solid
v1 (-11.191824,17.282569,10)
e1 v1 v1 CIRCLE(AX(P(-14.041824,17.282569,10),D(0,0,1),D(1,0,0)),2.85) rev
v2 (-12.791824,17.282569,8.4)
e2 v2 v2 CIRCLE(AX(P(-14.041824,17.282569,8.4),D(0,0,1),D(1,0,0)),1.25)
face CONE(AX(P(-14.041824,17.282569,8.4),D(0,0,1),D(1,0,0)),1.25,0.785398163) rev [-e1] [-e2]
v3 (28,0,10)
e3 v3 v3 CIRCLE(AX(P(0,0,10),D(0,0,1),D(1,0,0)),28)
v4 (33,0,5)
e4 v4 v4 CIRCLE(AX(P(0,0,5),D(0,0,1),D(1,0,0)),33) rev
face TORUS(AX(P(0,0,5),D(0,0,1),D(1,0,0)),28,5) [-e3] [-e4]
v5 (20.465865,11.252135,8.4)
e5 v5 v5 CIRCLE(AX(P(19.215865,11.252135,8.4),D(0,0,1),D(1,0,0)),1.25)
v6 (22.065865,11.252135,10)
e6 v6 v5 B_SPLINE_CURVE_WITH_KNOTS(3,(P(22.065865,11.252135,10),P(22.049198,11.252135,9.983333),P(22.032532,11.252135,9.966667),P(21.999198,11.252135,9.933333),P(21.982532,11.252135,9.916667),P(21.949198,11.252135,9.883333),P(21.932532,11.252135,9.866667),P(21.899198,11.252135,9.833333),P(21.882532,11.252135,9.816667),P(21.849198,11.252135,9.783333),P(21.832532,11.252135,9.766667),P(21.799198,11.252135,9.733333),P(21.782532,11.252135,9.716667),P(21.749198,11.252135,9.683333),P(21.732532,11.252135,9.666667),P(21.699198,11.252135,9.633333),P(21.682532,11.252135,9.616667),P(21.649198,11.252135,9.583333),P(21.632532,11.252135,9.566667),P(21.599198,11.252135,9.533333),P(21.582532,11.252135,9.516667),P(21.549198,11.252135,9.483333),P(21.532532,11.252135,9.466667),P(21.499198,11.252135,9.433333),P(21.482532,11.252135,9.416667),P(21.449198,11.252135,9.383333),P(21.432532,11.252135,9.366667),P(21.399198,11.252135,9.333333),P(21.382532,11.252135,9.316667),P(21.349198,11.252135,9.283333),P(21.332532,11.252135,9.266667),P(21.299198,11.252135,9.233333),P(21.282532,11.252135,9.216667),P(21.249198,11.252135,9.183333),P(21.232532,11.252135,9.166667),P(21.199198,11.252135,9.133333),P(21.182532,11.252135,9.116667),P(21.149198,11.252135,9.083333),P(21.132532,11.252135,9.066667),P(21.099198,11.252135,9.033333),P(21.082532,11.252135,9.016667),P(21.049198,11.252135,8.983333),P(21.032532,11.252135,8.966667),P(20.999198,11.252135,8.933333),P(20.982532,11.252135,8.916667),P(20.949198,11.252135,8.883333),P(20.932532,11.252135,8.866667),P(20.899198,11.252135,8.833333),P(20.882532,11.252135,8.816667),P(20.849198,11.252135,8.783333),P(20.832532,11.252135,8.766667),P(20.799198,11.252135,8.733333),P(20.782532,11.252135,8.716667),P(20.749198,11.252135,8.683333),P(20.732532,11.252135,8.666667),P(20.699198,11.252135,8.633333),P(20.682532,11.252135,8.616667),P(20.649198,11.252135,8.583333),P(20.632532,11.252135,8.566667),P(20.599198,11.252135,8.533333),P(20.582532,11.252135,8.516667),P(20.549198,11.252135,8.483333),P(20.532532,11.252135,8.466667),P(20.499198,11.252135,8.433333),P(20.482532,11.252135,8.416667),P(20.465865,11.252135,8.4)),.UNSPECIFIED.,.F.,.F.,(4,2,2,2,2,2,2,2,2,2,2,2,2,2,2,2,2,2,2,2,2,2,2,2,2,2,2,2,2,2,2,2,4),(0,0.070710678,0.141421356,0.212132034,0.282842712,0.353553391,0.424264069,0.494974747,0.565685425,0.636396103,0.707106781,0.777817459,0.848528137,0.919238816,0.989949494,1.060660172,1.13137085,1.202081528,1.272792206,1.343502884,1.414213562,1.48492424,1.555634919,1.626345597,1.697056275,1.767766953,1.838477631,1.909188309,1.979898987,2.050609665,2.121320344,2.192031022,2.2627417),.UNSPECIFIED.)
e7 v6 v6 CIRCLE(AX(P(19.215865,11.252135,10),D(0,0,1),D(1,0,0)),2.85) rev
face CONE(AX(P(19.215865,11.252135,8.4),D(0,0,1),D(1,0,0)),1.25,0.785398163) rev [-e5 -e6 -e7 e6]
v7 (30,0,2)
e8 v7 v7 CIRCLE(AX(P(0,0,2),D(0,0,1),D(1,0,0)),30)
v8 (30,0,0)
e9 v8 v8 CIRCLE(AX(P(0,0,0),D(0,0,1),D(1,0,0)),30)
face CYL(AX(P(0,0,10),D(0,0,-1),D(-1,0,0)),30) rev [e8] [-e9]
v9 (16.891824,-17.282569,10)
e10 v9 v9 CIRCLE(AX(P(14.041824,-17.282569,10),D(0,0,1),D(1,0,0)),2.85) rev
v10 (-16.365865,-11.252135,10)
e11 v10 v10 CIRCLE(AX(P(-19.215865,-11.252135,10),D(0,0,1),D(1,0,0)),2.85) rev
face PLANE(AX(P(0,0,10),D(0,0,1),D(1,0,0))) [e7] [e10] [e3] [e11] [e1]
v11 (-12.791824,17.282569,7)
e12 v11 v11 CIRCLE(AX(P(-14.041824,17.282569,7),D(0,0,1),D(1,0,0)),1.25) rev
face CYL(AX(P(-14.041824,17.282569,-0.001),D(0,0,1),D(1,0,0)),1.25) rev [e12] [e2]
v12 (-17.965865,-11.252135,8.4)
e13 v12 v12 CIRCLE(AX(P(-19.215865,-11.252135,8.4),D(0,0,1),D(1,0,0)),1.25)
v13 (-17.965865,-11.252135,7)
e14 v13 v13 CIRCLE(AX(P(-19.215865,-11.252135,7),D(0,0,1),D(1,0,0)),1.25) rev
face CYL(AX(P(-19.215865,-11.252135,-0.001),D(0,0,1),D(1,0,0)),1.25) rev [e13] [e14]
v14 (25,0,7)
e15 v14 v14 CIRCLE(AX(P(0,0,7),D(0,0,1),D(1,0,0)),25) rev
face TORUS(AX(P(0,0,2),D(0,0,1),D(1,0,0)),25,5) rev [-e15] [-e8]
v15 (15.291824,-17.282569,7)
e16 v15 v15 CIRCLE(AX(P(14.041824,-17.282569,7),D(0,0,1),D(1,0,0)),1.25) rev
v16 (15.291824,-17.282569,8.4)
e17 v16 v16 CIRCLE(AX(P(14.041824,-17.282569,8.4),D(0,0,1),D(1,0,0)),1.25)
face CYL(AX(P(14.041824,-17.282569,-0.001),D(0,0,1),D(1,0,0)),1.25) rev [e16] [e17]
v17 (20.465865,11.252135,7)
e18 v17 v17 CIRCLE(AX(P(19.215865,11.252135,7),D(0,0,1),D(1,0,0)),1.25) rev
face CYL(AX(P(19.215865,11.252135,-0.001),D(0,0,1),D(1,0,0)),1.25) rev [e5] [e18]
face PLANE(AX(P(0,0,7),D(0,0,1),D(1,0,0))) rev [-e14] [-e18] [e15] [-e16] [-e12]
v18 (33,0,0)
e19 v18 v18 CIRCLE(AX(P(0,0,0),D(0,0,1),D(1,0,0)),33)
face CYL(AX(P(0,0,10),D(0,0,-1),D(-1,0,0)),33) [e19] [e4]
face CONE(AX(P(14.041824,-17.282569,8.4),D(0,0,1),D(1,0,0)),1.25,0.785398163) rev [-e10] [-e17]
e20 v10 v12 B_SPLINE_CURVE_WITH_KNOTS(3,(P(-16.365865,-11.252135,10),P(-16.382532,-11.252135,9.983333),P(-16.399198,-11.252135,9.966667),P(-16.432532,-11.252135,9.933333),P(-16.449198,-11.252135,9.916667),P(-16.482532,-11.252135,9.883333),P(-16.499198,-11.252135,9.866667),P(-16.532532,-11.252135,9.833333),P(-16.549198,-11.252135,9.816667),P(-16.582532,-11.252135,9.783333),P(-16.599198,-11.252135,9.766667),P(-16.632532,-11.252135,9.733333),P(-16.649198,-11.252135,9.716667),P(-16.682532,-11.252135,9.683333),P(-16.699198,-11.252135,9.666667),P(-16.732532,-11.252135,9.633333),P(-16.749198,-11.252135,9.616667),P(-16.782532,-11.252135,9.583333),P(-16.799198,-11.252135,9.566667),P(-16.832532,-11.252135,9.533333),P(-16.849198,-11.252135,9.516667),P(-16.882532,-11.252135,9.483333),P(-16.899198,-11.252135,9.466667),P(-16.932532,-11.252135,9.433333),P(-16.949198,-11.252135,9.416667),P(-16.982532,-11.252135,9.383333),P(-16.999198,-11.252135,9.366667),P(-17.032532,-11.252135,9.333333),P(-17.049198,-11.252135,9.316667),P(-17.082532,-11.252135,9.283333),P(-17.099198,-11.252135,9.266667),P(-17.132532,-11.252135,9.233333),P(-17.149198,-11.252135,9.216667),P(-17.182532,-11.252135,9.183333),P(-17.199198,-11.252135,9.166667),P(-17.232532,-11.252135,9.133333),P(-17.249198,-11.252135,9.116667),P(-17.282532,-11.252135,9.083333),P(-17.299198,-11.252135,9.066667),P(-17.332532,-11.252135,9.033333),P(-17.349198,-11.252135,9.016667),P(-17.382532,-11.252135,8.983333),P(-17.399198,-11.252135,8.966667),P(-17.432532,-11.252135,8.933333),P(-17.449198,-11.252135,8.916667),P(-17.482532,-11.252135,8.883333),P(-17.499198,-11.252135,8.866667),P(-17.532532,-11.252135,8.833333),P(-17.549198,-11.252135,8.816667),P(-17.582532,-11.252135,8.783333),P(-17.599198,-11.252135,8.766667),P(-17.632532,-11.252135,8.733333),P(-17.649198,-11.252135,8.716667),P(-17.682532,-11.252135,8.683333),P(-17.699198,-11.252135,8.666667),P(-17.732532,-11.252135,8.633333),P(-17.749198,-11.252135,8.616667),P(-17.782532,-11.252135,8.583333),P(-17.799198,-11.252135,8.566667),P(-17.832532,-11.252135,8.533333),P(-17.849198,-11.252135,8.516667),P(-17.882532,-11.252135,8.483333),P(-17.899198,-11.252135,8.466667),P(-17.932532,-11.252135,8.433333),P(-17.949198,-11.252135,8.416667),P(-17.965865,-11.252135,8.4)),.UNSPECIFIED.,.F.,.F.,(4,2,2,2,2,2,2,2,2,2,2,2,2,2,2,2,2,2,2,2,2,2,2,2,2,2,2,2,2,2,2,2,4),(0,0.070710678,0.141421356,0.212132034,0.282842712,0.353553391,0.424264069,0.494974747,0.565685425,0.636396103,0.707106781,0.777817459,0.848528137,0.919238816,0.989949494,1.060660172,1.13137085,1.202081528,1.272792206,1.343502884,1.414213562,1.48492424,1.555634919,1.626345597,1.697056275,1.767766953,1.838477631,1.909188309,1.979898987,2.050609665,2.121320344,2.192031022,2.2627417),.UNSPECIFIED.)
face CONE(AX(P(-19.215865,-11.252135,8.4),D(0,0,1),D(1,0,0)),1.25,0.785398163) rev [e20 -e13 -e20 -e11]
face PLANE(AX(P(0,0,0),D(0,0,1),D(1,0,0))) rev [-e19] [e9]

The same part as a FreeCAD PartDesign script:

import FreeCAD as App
import Part
import Sketcher
from FreeCAD import Vector
Q = App.Units.Quantity


def edges_at(feature, points):
    """Names of the edges that pass closest to the given points."""
    edges = feature.Shape.Edges
    near = lambda p: min(range(len(edges)), key=lambda i: edges[i].distToShape(Part.Vertex(*p))[0])
    return sorted({f"Edge{near(p) + 1}" for p in points})


def faces_at(feature, points):
    """Names of the faces that lie closest to the given points."""
    faces = feature.Shape.Faces
    near = lambda p: min(range(len(faces)), key=lambda i: faces[i].distToShape(Part.Vertex(*p))[0])
    return sorted({f"Face{near(p) + 1}" for p in points})

doc = App.newDocument("Part")
body = doc.addObject("PartDesign::Body", "Body")

# Sketch on XY plane
sketch1 = doc.addObject("Sketcher::SketchObject", "Sketch")
body.addObject(sketch1)
sketch1.AttachmentSupport = (doc.XY_Plane, [""])
sketch1.MapMode = "FlatFace"
sketch1.addGeometry(Part.Circle(Vector(0, 0, 0), Vector(0, 0, 1), 33), False)
sketch1.addConstraint([
    Sketcher.Constraint("Coincident", 0, 3, -1, 1),
    Sketcher.Constraint("Diameter", 0, Q("66 mm")),
])
pad1 = doc.addObject("PartDesign::Pad", "Pad")
body.addObject(pad1)
pad1.Profile = sketch1
pad1.Length = 10
doc.recompute()

thickness = doc.addObject("PartDesign::Thickness", "Thickness")
body.addObject(thickness)
thickness.Base = (pad1, faces_at(pad1, [(0, 0, 0)]))
thickness.Value = 3
thickness.Reversed = True
thickness.Join = "Intersection"
doc.recompute()

fillet = doc.addObject("PartDesign::Fillet", "Fillet")
body.addObject(fillet)
fillet.Base = (thickness, edges_at(thickness, [(-33, 0, 10), (-30, 0, 7)]))
fillet.Radius = 5

# Sketch on XY plane
sketch2 = doc.addObject("Sketcher::SketchObject", "Sketch001")
body.addObject(sketch2)
sketch2.AttachmentSupport = (doc.XY_Plane, [""])
sketch2.MapMode = "FlatFace"
sketch2.AttachmentOffset = App.Placement(Vector(0, 0, 10), App.Rotation())
sketch2.addGeometry(Part.Circle(Vector(14, -17.3, 0), Vector(0, 0, 1), 1.2), False)
sketch2.addConstraint([
    Sketcher.Constraint("Diameter", 0, Q("2.5 mm")),
    Sketcher.Constraint("DistanceY", 0, 3, -1, 1, Q("17.282569 mm")),
    Sketcher.Constraint("DistanceX", -1, 1, 0, 3, Q("14.041824 mm")),
])
pocket1 = doc.addObject("PartDesign::Pocket", "Pocket")
body.addObject(pocket1)
pocket1.Profile = sketch2
pocket1.Type = "UpToFirst"

# Sketch on XY plane
sketch3 = doc.addObject("Sketcher::SketchObject", "Sketch002")
body.addObject(sketch3)
sketch3.AttachmentSupport = (doc.XY_Plane, [""])
sketch3.MapMode = "FlatFace"
sketch3.AttachmentOffset = App.Placement(Vector(0, 0, 10), App.Rotation())
sketch3.addGeometry(Part.Circle(Vector(19.2, 11.3, 0), Vector(0, 0, 1), 1.2), False)
sketch3.addConstraint([
    Sketcher.Constraint("Diameter", 0, Q("2.5 mm")),
    Sketcher.Constraint("DistanceX", -1, 1, 0, 3, Q("19.215865 mm")),
    Sketcher.Constraint("DistanceY", -1, 1, 0, 3, Q("11.252135 mm")),
])
pocket2 = doc.addObject("PartDesign::Pocket", "Pocket001")
body.addObject(pocket2)
pocket2.Profile = sketch3
pocket2.Type = "UpToFirst"

# Sketch on XY plane
sketch4 = doc.addObject("Sketcher::SketchObject", "Sketch003")
body.addObject(sketch4)
sketch4.AttachmentSupport = (doc.XY_Plane, [""])
sketch4.MapMode = "FlatFace"
sketch4.AttachmentOffset = App.Placement(Vector(0, 0, 10), App.Rotation())
sketch4.addGeometry(Part.Circle(Vector(-19.2, -11.3, 0), Vector(0, 0, 1), 1.2), False)
sketch4.addConstraint([
    Sketcher.Constraint("Diameter", 0, Q("2.5 mm")),
    Sketcher.Constraint("DistanceX", 0, 3, -1, 1, Q("19.215865 mm")),
    Sketcher.Constraint("DistanceY", 0, 3, -1, 1, Q("11.252135 mm")),
])
pocket3 = doc.addObject("PartDesign::Pocket", "Pocket002")
body.addObject(pocket3)
pocket3.Profile = sketch4
pocket3.Type = "UpToFirst"

# Sketch on XY plane
sketch5 = doc.addObject("Sketcher::SketchObject", "Sketch004")
body.addObject(sketch5)
sketch5.AttachmentSupport = (doc.XY_Plane, [""])
sketch5.MapMode = "FlatFace"
sketch5.AttachmentOffset = App.Placement(Vector(0, 0, 10), App.Rotation())
sketch5.addGeometry(Part.Circle(Vector(-14, 17.3, 0), Vector(0, 0, 1), 1.2), False)
sketch5.addConstraint([
    Sketcher.Constraint("Diameter", 0, Q("2.5 mm")),
    Sketcher.Constraint("DistanceY", -1, 1, 0, 3, Q("17.282569 mm")),
    Sketcher.Constraint("DistanceX", 0, 3, -1, 1, Q("14.041824 mm")),
])
pocket4 = doc.addObject("PartDesign::Pocket", "Pocket003")
body.addObject(pocket4)
pocket4.Profile = sketch5
pocket4.Type = "UpToFirst"
doc.recompute()

chamfer = doc.addObject("PartDesign::Chamfer", "Chamfer")
body.addObject(chamfer)
chamfer.Base = (pocket4, edges_at(pocket4, [
    (12.792, -17.283, 10),
    (17.966, 11.252, 10),
    (-20.466, -11.252, 10),
    (-15.292, 17.283, 10),
]))
chamfer.Size = 1.6

doc.recompute()
